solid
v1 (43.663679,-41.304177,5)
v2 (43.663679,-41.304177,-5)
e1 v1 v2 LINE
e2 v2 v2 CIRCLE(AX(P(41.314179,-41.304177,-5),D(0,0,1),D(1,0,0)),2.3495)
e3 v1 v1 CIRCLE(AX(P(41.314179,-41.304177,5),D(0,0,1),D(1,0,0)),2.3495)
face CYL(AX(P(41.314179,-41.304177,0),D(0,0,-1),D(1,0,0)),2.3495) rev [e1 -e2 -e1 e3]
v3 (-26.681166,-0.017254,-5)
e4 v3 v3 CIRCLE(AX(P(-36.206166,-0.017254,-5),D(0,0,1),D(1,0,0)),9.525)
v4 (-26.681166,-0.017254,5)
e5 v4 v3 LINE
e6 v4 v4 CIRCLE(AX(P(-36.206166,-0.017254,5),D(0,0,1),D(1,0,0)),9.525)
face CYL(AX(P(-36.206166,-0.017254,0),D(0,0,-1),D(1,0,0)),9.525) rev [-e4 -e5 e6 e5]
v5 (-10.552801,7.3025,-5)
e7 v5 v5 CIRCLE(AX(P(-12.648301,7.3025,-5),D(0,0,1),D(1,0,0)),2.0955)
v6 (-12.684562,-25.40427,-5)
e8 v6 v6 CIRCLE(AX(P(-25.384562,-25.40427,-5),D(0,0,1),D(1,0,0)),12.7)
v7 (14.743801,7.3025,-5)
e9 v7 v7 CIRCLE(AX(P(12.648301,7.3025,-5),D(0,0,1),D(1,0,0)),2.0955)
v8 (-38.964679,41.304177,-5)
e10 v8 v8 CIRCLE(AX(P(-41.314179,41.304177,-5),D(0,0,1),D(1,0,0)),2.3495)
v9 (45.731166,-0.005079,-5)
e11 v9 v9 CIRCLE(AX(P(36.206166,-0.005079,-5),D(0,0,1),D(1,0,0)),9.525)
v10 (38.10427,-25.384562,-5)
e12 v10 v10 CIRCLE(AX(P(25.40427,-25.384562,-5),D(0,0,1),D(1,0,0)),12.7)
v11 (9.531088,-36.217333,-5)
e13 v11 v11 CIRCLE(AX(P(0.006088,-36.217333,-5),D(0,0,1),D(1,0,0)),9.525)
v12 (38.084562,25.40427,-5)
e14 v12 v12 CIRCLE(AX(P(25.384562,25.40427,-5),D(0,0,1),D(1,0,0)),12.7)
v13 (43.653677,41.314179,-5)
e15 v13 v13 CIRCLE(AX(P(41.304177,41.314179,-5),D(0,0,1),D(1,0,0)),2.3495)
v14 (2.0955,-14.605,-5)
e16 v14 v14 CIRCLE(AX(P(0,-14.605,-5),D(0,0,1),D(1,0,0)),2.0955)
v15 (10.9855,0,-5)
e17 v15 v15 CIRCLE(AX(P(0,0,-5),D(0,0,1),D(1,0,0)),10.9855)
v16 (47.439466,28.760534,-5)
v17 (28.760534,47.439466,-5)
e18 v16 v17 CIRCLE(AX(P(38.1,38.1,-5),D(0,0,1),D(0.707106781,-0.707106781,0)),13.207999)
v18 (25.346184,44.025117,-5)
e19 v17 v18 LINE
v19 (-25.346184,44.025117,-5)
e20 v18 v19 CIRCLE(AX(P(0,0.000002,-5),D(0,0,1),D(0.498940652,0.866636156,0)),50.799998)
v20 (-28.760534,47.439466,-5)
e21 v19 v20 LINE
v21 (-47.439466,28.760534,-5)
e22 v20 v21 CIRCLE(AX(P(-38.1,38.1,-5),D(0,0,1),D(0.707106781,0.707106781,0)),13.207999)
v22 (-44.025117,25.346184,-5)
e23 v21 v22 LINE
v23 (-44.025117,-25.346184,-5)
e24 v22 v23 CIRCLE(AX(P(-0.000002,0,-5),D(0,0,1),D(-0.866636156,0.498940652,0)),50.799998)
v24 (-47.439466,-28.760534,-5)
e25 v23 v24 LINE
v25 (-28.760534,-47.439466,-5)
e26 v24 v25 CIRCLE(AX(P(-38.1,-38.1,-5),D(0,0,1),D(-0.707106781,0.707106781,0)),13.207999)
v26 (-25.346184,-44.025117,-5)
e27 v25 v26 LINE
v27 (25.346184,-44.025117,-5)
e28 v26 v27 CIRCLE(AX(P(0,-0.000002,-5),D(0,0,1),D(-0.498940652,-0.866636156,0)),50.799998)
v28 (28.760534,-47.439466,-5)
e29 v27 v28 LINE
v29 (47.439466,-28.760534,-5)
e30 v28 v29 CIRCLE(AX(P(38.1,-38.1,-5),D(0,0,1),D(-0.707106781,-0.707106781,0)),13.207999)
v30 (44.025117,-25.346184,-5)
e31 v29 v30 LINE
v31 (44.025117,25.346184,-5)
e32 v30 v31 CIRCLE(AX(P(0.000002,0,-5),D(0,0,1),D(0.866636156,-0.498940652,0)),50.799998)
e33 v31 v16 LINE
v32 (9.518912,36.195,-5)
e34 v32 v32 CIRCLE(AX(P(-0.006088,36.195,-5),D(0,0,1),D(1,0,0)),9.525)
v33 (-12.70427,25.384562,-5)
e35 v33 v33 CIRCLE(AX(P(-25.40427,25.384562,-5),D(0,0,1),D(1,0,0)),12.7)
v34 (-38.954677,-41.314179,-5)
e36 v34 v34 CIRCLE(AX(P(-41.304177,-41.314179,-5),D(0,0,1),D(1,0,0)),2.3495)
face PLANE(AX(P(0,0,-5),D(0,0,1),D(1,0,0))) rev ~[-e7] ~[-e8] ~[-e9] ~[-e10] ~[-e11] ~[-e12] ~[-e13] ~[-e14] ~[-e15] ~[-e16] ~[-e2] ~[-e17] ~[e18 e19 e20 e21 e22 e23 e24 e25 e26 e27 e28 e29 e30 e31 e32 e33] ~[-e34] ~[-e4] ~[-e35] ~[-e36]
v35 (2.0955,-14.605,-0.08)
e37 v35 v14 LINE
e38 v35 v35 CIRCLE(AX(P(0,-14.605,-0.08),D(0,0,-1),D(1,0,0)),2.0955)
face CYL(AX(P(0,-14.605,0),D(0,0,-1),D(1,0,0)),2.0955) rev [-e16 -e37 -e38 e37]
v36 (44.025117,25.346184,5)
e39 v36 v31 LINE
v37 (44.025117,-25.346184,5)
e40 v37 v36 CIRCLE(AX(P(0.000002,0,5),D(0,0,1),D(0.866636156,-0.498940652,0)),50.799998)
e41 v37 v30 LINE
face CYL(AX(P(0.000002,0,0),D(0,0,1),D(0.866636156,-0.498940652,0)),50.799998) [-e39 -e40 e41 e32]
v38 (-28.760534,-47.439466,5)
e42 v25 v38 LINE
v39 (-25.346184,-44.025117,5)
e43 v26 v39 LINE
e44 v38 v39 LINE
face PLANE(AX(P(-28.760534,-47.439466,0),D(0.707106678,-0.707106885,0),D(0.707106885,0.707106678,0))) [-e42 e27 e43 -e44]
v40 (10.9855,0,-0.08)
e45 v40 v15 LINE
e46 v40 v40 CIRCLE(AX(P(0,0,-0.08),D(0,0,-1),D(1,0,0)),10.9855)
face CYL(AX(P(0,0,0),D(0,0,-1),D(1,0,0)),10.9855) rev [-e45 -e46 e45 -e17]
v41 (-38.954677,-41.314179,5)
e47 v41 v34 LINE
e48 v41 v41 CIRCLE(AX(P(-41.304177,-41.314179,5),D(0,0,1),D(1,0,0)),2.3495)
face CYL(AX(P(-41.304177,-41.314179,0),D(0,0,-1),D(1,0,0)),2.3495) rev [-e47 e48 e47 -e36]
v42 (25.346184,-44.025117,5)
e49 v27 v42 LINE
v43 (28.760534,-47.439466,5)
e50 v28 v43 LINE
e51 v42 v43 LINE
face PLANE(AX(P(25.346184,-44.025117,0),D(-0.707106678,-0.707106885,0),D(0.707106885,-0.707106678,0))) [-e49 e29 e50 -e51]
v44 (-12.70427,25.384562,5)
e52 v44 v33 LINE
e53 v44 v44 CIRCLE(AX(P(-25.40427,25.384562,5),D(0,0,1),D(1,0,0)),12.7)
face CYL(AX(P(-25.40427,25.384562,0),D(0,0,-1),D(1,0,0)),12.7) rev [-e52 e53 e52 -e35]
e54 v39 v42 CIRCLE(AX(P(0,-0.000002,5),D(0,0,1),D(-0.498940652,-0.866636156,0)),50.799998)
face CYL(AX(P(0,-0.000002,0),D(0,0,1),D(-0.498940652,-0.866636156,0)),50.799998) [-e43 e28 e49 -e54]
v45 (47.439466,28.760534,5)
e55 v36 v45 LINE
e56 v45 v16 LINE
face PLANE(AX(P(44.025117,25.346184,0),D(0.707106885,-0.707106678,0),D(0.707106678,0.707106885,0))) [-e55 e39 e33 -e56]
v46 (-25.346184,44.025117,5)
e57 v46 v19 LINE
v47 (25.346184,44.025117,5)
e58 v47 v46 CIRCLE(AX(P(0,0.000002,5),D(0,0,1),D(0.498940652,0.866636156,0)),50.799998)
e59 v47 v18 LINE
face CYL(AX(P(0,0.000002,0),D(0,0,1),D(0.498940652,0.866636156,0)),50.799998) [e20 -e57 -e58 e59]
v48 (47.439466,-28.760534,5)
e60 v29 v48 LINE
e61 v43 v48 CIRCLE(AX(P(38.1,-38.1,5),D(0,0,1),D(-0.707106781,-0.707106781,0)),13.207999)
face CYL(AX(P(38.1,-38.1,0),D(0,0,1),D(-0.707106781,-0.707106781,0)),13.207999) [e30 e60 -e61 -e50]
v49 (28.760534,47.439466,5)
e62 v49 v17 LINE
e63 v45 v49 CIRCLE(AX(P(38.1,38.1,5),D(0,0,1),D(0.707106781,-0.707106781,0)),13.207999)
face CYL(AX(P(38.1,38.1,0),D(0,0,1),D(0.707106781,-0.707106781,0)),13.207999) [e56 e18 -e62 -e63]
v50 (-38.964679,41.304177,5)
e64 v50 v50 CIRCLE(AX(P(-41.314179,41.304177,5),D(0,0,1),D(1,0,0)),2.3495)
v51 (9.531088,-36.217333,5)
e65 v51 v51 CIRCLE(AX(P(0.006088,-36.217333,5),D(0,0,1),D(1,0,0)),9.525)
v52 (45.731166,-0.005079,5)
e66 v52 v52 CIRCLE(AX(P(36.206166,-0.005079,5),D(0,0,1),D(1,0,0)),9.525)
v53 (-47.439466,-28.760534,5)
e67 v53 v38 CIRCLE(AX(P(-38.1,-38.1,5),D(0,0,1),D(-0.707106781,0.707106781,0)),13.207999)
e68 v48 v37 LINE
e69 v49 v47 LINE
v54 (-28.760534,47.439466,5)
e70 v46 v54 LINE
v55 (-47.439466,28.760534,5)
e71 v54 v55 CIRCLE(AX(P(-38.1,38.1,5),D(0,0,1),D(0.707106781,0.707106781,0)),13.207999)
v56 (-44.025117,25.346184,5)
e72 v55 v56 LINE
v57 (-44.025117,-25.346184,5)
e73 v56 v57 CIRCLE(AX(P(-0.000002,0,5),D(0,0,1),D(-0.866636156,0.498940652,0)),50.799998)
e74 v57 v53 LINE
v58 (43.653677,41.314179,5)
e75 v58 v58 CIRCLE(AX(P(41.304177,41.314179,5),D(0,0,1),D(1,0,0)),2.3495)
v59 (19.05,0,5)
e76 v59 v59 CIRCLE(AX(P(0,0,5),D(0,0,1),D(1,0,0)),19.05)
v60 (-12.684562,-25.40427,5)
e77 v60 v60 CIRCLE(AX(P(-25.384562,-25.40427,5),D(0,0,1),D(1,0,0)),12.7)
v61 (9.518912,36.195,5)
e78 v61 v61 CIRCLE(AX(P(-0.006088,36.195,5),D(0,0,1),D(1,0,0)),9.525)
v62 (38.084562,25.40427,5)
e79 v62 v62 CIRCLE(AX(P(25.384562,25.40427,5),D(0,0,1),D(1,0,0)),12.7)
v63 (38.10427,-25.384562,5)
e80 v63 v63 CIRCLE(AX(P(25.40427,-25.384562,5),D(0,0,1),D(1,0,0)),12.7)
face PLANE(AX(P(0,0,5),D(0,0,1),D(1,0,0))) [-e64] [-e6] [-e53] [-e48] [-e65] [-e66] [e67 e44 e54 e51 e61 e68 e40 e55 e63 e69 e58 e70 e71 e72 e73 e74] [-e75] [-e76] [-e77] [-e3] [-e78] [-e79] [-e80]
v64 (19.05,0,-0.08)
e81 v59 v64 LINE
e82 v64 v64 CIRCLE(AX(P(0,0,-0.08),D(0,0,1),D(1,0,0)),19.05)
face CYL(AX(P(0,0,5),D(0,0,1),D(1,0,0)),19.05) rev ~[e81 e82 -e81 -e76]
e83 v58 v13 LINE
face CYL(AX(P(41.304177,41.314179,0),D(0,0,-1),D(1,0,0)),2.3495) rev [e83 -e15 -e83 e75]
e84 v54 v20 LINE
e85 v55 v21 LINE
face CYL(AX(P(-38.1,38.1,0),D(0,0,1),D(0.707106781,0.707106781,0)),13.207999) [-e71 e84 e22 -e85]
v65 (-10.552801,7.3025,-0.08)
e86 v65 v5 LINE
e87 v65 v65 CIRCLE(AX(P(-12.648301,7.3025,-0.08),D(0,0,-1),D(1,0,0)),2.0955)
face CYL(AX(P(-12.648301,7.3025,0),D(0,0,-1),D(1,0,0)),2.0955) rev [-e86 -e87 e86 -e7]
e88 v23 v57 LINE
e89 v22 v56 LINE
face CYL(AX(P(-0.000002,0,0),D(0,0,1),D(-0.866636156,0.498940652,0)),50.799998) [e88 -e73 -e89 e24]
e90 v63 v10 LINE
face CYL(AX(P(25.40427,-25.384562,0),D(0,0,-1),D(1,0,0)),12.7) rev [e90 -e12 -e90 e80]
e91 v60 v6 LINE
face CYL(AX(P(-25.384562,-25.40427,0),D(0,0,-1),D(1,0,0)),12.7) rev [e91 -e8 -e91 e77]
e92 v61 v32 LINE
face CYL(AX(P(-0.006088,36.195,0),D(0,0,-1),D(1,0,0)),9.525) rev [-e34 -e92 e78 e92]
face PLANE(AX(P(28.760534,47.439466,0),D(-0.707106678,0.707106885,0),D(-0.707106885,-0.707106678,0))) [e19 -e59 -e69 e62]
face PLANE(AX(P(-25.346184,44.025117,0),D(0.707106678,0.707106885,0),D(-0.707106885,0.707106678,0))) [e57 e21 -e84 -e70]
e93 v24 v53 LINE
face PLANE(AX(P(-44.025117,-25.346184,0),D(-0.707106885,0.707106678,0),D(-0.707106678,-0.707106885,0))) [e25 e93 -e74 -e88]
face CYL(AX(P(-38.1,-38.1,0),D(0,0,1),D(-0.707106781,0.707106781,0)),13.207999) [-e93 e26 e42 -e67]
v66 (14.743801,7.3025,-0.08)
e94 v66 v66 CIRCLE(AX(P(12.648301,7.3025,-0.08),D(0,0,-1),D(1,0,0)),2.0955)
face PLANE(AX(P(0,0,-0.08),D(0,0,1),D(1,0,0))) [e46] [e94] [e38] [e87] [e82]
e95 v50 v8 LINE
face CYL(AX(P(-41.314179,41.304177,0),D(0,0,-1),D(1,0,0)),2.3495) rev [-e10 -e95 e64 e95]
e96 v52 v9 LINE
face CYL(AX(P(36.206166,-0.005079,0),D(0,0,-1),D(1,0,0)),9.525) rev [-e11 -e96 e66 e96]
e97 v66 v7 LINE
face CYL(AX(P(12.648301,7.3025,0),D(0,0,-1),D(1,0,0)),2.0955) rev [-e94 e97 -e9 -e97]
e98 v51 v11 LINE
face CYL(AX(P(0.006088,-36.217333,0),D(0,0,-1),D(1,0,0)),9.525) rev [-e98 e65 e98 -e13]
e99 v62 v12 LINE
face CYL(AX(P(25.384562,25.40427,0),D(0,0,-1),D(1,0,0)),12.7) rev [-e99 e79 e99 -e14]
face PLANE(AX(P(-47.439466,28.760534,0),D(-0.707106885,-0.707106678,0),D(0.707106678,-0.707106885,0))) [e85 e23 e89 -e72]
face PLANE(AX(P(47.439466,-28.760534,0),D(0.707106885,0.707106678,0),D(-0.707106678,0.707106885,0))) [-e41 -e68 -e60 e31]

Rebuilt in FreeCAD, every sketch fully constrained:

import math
import FreeCAD as App
import Part
import Sketcher

V = App.Vector
Q = App.Units.Quantity

doc = App.newDocument("Part")
body = doc.addObject("PartDesign::Body", "Body")

# Sketch on XY plane
sketch1 = body.newObject("Sketcher::SketchObject", "Sketch")
sketch1.AttachmentSupport = (doc.getObject("XY_Plane"), [""])
sketch1.MapMode = "FlatFace"
sketch1.addGeometry([
    Part.LineSegment(V(-47.4, 28.8, 0), V(-44, 25.3, 0)),  # 0
    Part.ArcOfCircle(Part.Circle(V(0, 0, 0), V(0, 0, 1), 50.8), math.radians(150), math.radians(210)),  # 1
    Part.LineSegment(V(-44, -25.3, 0), V(-47.4, -28.8, 0)),  # 2
    Part.ArcOfCircle(Part.Circle(V(-38.1, -38.1, 0), V(0, 0, 1), 13.2), math.radians(135), math.radians(315)),  # 3
    Part.LineSegment(V(-28.8, -47.4, 0), V(-25.3, -44, 0)),  # 4
    Part.ArcOfCircle(Part.Circle(V(0, 0, 0), V(0, 0, 1), 50.8), math.radians(-120), math.radians(-60)),  # 5
    Part.LineSegment(V(25.3, -44, 0), V(28.8, -47.4, 0)),  # 6
    Part.ArcOfCircle(Part.Circle(V(38.1, -38.1, 0), V(0, 0, 1), 13.2), math.radians(-135), math.radians(45)),  # 7
    Part.LineSegment(V(47.4, -28.8, 0), V(44, -25.3, 0)),  # 8
    Part.ArcOfCircle(Part.Circle(V(0, 0, 0), V(0, 0, 1), 50.8), math.radians(-30), math.radians(30)),  # 9
    Part.LineSegment(V(44, 25.3, 0), V(47.4, 28.8, 0)),  # 10
    Part.ArcOfCircle(Part.Circle(V(38.1, 38.1, 0), V(0, 0, 1), 13.2), math.radians(-45), math.radians(135)),  # 11
    Part.LineSegment(V(28.8, 47.4, 0), V(25.3, 44, 0)),  # 12
    Part.ArcOfCircle(Part.Circle(V(0, 0, 0), V(0, 0, 1), 50.8), math.radians(60), math.radians(120)),  # 13
    Part.LineSegment(V(-25.3, 44, 0), V(-28.8, 47.4, 0)),  # 14
    Part.ArcOfCircle(Part.Circle(V(-38.1, 38.1, 0), V(0, 0, 1), 13.2), math.radians(45), math.radians(225)),  # 15
    Part.Circle(V(-41.3, -41.3, 0), V(0, 0, 1), 2.3),  # 16
    Part.Circle(V(-25.4, -25.4, 0), V(0, 0, 1), 12.7),  # 17
    Part.Circle(V(-36.2, 0, 0), V(0, 0, 1), 9.5),  # 18
    Part.Circle(V(0, -36.2, 0), V(0, 0, 1), 9.5),  # 19
    Part.Circle(V(41.3, -41.3, 0), V(0, 0, 1), 2.3),  # 20
    Part.Circle(V(25.4, -25.4, 0), V(0, 0, 1), 12.7),  # 21
    Part.Circle(V(0, -14.6, 0), V(0, 0, 1), 2.1),  # 22
    Part.Circle(V(-12.6, 7.3, 0), V(0, 0, 1), 2.1),  # 23
    Part.Circle(V(-25.4, 25.4, 0), V(0, 0, 1), 12.7),  # 24
    Part.Circle(V(-41.3, 41.3, 0), V(0, 0, 1), 2.3),  # 25
    Part.Circle(V(0, 36.2, 0), V(0, 0, 1), 9.5),  # 26
    Part.Circle(V(0, 0, 0), V(0, 0, 1), 11),  # 27
    Part.Circle(V(12.6, 7.3, 0), V(0, 0, 1), 2.1),  # 28
    Part.Circle(V(36.2, 0, 0), V(0, 0, 1), 9.5),  # 29
    Part.Circle(V(25.4, 25.4, 0), V(0, 0, 1), 12.7),  # 30
    Part.Circle(V(41.3, 41.3, 0), V(0, 0, 1), 2.3),  # 31
], False)
sketch1.addConstraint([
    Sketcher.Constraint("Coincident", 0, 2, 1, 1),
    Sketcher.Constraint("Coincident", 1, 2, 2, 1),
    Sketcher.Constraint("Tangent", 2, 2, 3, 1),
    Sketcher.Constraint("Tangent", 3, 2, 4, 1),
    Sketcher.Constraint("Coincident", 4, 2, 5, 1),
    Sketcher.Constraint("Coincident", 5, 2, 6, 1),
    Sketcher.Constraint("Tangent", 6, 2, 7, 1),
    Sketcher.Constraint("Tangent", 7, 2, 8, 1),
    Sketcher.Constraint("Coincident", 8, 2, 9, 1),
    Sketcher.Constraint("Coincident", 9, 2, 10, 1),
    Sketcher.Constraint("Tangent", 10, 2, 11, 1),
    Sketcher.Constraint("Tangent", 11, 2, 12, 1),
    Sketcher.Constraint("Coincident", 12, 2, 13, 1),
    Sketcher.Constraint("Coincident", 13, 2, 14, 1),
    Sketcher.Constraint("Tangent", 14, 2, 15, 1),
    Sketcher.Constraint("Tangent", 15, 2, 0, 1),
    Sketcher.Constraint("Coincident", 1, 3, -1, 1),
    Sketcher.Constraint("Coincident", 5, 3, -1, 1),
    Sketcher.Constraint("Coincident", 9, 3, -1, 1),
    Sketcher.Constraint("Coincident", 13, 3, -1, 1),
    Sketcher.Constraint("Coincident", 27, 3, -1, 1),
    Sketcher.Constraint("Equal", 1, 5),
    Sketcher.Constraint("Equal", 3, 7),
    Sketcher.Constraint("Equal", 5, 9),
    Sketcher.Constraint("Equal", 7, 11),
    Sketcher.Constraint("Equal", 9, 13),
    Sketcher.Constraint("Equal", 11, 15),
    Sketcher.Constraint("Equal", 18, 19),
    Sketcher.Constraint("Equal", 16, 20),
    Sketcher.Constraint("Equal", 17, 21),
    Sketcher.Constraint("Equal", 22, 23),
    Sketcher.Constraint("Equal", 21, 24),
    Sketcher.Constraint("Equal", 20, 25),
    Sketcher.Constraint("Equal", 19, 26),
    Sketcher.Constraint("Equal", 23, 28),
    Sketcher.Constraint("Equal", 26, 29),
    Sketcher.Constraint("Equal", 24, 30),
    Sketcher.Constraint("Equal", 25, 31),
    Sketcher.Constraint("Symmetric", 3, 3, 11, 3, -1, 1),
    Sketcher.Constraint("Symmetric", 7, 3, 15, 3, -1, 1),
    Sketcher.Constraint("Symmetric", 21, 3, 24, 3, -1, 1),
    Sketcher.Constraint("Symmetric", 20, 3, 25, 3, -1, 1),
    Sketcher.Constraint("Symmetric", 17, 3, 30, 3, -1, 1),
    Sketcher.Constraint("Symmetric", 16, 3, 31, 3, -1, 1),
    Sketcher.Constraint("Symmetric", 3, 3, 7, 3, -2),
    Sketcher.Constraint("Symmetric", 23, 3, 28, 3, -2),
    Sketcher.Constraint("PointOnObject", 22, 3, -2),
    Sketcher.Constraint("Perpendicular", 0, 2),
    Sketcher.Constraint("Parallel", 2, 4),
    Sketcher.Constraint("Perpendicular", 4, 6),
    Sketcher.Constraint("Parallel", 6, 8),
    Sketcher.Constraint("Perpendicular", 8, 10),
    Sketcher.Constraint("Parallel", 10, 12),
    Sketcher.Constraint("Perpendicular", 12, 14),
    Sketcher.Constraint("Horizontal", 4, 2, 5, 2),
    Sketcher.Constraint("Equal", 2, 4),
    Sketcher.Constraint("Diameter", 17, Q("1 in")),
    Sketcher.Constraint("Radius", 1, Q("1.9999999 in")),
    Sketcher.Constraint("Diameter", 18, Q("0.75 in")),
    Sketcher.Constraint("Radius", 3, Q("0.52 in")),
    Sketcher.Constraint("Diameter", 16, Q("0.185 in")),
    Sketcher.Constraint("Diameter", 22, Q("0.165 in")),
    Sketcher.Constraint("Diameter", 27, Q("0.865 in")),
    Sketcher.Constraint("DistanceX", 3, 3, 7, 3, Q("3 in")),
    Sketcher.Constraint("DistanceY", 22, 3, -1, 1, Q("0.575 in")),
    Sketcher.Constraint("DistanceY", -1, 1, 26, 3, Q("1.425 in")),
    Sketcher.Constraint("DistanceY", -1, 1, 23, 3, Q("0.2875 in")),
    Sketcher.Constraint("DistanceY", 29, 3, -1, 1, Q("0.0002 in")),
    Sketcher.Constraint("DistanceX", 23, 3, -1, 1, Q("12.648301 mm")),
    Sketcher.Constraint("DistanceX", 2, 2, 18, 3, Q("11.2333 mm")),
    Sketcher.Constraint("DistanceX", 29, 3, 10, 2, Q("11.2333 mm")),
    Sketcher.Constraint("DistanceY", 16, 3, -1, 1, Q("41.314179 mm")),
    Sketcher.Constraint("DistanceX", 17, 3, -1, 1, Q("25.384562 mm")),
    Sketcher.Constraint("DistanceY", 17, 3, -1, 1, Q("25.40427 mm")),
    Sketcher.Constraint("DistanceX", -1, 1, 20, 3, Q("41.314179 mm")),
    Sketcher.Constraint("DistanceX", -1, 1, 21, 3, Q("25.40427 mm")),
    Sketcher.Constraint("DistanceY", 21, 3, -1, 1, Q("25.384562 mm")),
    Sketcher.Constraint("DistanceX", 16, 3, 9, 3, Q("41.304179 mm")),
    Sketcher.Constraint("DistanceY", 18, 3, 5, 3, Q("0.017252 mm")),
    Sketcher.Constraint("DistanceX", 17, 3, 19, 3, Q("25.39065 mm")),
    Sketcher.Constraint("DistanceY", 19, 3, 5, 3, Q("36.217331 mm")),
    Sketcher.Constraint("DistanceY", 20, 3, 13, 3, Q("41.304179 mm")),
    Sketcher.Constraint("DistanceX", 26, 3, 9, 3, Q("0.00609 mm")),
])
pad1 = body.newObject("PartDesign::Pad", "Pad")
pad1.Profile = sketch1
pad1.Length = 10
pad1.Midplane = True

# Sketch on XY plane
sketch2 = body.newObject("Sketcher::SketchObject", "Sketch001")
sketch2.AttachmentSupport = (doc.getObject("XY_Plane"), [""])
sketch2.MapMode = "FlatFace"
sketch2.AttachmentOffset = App.Placement(V(0, 0, 5), App.Rotation())
sketch2.addGeometry(Part.Circle(V(0, 0, 0), V(0, 0, 1), 19), False)
sketch2.addConstraint([
    Sketcher.Constraint("Coincident", 0, 3, -1, 1),
    Sketcher.Constraint("Diameter", 0, Q("1.5 in")),
])
pocket1 = body.newObject("PartDesign::Pocket", "Pocket")
pocket1.Profile = sketch2
pocket1.Length = Q("0.2 in")

doc.recompute()
